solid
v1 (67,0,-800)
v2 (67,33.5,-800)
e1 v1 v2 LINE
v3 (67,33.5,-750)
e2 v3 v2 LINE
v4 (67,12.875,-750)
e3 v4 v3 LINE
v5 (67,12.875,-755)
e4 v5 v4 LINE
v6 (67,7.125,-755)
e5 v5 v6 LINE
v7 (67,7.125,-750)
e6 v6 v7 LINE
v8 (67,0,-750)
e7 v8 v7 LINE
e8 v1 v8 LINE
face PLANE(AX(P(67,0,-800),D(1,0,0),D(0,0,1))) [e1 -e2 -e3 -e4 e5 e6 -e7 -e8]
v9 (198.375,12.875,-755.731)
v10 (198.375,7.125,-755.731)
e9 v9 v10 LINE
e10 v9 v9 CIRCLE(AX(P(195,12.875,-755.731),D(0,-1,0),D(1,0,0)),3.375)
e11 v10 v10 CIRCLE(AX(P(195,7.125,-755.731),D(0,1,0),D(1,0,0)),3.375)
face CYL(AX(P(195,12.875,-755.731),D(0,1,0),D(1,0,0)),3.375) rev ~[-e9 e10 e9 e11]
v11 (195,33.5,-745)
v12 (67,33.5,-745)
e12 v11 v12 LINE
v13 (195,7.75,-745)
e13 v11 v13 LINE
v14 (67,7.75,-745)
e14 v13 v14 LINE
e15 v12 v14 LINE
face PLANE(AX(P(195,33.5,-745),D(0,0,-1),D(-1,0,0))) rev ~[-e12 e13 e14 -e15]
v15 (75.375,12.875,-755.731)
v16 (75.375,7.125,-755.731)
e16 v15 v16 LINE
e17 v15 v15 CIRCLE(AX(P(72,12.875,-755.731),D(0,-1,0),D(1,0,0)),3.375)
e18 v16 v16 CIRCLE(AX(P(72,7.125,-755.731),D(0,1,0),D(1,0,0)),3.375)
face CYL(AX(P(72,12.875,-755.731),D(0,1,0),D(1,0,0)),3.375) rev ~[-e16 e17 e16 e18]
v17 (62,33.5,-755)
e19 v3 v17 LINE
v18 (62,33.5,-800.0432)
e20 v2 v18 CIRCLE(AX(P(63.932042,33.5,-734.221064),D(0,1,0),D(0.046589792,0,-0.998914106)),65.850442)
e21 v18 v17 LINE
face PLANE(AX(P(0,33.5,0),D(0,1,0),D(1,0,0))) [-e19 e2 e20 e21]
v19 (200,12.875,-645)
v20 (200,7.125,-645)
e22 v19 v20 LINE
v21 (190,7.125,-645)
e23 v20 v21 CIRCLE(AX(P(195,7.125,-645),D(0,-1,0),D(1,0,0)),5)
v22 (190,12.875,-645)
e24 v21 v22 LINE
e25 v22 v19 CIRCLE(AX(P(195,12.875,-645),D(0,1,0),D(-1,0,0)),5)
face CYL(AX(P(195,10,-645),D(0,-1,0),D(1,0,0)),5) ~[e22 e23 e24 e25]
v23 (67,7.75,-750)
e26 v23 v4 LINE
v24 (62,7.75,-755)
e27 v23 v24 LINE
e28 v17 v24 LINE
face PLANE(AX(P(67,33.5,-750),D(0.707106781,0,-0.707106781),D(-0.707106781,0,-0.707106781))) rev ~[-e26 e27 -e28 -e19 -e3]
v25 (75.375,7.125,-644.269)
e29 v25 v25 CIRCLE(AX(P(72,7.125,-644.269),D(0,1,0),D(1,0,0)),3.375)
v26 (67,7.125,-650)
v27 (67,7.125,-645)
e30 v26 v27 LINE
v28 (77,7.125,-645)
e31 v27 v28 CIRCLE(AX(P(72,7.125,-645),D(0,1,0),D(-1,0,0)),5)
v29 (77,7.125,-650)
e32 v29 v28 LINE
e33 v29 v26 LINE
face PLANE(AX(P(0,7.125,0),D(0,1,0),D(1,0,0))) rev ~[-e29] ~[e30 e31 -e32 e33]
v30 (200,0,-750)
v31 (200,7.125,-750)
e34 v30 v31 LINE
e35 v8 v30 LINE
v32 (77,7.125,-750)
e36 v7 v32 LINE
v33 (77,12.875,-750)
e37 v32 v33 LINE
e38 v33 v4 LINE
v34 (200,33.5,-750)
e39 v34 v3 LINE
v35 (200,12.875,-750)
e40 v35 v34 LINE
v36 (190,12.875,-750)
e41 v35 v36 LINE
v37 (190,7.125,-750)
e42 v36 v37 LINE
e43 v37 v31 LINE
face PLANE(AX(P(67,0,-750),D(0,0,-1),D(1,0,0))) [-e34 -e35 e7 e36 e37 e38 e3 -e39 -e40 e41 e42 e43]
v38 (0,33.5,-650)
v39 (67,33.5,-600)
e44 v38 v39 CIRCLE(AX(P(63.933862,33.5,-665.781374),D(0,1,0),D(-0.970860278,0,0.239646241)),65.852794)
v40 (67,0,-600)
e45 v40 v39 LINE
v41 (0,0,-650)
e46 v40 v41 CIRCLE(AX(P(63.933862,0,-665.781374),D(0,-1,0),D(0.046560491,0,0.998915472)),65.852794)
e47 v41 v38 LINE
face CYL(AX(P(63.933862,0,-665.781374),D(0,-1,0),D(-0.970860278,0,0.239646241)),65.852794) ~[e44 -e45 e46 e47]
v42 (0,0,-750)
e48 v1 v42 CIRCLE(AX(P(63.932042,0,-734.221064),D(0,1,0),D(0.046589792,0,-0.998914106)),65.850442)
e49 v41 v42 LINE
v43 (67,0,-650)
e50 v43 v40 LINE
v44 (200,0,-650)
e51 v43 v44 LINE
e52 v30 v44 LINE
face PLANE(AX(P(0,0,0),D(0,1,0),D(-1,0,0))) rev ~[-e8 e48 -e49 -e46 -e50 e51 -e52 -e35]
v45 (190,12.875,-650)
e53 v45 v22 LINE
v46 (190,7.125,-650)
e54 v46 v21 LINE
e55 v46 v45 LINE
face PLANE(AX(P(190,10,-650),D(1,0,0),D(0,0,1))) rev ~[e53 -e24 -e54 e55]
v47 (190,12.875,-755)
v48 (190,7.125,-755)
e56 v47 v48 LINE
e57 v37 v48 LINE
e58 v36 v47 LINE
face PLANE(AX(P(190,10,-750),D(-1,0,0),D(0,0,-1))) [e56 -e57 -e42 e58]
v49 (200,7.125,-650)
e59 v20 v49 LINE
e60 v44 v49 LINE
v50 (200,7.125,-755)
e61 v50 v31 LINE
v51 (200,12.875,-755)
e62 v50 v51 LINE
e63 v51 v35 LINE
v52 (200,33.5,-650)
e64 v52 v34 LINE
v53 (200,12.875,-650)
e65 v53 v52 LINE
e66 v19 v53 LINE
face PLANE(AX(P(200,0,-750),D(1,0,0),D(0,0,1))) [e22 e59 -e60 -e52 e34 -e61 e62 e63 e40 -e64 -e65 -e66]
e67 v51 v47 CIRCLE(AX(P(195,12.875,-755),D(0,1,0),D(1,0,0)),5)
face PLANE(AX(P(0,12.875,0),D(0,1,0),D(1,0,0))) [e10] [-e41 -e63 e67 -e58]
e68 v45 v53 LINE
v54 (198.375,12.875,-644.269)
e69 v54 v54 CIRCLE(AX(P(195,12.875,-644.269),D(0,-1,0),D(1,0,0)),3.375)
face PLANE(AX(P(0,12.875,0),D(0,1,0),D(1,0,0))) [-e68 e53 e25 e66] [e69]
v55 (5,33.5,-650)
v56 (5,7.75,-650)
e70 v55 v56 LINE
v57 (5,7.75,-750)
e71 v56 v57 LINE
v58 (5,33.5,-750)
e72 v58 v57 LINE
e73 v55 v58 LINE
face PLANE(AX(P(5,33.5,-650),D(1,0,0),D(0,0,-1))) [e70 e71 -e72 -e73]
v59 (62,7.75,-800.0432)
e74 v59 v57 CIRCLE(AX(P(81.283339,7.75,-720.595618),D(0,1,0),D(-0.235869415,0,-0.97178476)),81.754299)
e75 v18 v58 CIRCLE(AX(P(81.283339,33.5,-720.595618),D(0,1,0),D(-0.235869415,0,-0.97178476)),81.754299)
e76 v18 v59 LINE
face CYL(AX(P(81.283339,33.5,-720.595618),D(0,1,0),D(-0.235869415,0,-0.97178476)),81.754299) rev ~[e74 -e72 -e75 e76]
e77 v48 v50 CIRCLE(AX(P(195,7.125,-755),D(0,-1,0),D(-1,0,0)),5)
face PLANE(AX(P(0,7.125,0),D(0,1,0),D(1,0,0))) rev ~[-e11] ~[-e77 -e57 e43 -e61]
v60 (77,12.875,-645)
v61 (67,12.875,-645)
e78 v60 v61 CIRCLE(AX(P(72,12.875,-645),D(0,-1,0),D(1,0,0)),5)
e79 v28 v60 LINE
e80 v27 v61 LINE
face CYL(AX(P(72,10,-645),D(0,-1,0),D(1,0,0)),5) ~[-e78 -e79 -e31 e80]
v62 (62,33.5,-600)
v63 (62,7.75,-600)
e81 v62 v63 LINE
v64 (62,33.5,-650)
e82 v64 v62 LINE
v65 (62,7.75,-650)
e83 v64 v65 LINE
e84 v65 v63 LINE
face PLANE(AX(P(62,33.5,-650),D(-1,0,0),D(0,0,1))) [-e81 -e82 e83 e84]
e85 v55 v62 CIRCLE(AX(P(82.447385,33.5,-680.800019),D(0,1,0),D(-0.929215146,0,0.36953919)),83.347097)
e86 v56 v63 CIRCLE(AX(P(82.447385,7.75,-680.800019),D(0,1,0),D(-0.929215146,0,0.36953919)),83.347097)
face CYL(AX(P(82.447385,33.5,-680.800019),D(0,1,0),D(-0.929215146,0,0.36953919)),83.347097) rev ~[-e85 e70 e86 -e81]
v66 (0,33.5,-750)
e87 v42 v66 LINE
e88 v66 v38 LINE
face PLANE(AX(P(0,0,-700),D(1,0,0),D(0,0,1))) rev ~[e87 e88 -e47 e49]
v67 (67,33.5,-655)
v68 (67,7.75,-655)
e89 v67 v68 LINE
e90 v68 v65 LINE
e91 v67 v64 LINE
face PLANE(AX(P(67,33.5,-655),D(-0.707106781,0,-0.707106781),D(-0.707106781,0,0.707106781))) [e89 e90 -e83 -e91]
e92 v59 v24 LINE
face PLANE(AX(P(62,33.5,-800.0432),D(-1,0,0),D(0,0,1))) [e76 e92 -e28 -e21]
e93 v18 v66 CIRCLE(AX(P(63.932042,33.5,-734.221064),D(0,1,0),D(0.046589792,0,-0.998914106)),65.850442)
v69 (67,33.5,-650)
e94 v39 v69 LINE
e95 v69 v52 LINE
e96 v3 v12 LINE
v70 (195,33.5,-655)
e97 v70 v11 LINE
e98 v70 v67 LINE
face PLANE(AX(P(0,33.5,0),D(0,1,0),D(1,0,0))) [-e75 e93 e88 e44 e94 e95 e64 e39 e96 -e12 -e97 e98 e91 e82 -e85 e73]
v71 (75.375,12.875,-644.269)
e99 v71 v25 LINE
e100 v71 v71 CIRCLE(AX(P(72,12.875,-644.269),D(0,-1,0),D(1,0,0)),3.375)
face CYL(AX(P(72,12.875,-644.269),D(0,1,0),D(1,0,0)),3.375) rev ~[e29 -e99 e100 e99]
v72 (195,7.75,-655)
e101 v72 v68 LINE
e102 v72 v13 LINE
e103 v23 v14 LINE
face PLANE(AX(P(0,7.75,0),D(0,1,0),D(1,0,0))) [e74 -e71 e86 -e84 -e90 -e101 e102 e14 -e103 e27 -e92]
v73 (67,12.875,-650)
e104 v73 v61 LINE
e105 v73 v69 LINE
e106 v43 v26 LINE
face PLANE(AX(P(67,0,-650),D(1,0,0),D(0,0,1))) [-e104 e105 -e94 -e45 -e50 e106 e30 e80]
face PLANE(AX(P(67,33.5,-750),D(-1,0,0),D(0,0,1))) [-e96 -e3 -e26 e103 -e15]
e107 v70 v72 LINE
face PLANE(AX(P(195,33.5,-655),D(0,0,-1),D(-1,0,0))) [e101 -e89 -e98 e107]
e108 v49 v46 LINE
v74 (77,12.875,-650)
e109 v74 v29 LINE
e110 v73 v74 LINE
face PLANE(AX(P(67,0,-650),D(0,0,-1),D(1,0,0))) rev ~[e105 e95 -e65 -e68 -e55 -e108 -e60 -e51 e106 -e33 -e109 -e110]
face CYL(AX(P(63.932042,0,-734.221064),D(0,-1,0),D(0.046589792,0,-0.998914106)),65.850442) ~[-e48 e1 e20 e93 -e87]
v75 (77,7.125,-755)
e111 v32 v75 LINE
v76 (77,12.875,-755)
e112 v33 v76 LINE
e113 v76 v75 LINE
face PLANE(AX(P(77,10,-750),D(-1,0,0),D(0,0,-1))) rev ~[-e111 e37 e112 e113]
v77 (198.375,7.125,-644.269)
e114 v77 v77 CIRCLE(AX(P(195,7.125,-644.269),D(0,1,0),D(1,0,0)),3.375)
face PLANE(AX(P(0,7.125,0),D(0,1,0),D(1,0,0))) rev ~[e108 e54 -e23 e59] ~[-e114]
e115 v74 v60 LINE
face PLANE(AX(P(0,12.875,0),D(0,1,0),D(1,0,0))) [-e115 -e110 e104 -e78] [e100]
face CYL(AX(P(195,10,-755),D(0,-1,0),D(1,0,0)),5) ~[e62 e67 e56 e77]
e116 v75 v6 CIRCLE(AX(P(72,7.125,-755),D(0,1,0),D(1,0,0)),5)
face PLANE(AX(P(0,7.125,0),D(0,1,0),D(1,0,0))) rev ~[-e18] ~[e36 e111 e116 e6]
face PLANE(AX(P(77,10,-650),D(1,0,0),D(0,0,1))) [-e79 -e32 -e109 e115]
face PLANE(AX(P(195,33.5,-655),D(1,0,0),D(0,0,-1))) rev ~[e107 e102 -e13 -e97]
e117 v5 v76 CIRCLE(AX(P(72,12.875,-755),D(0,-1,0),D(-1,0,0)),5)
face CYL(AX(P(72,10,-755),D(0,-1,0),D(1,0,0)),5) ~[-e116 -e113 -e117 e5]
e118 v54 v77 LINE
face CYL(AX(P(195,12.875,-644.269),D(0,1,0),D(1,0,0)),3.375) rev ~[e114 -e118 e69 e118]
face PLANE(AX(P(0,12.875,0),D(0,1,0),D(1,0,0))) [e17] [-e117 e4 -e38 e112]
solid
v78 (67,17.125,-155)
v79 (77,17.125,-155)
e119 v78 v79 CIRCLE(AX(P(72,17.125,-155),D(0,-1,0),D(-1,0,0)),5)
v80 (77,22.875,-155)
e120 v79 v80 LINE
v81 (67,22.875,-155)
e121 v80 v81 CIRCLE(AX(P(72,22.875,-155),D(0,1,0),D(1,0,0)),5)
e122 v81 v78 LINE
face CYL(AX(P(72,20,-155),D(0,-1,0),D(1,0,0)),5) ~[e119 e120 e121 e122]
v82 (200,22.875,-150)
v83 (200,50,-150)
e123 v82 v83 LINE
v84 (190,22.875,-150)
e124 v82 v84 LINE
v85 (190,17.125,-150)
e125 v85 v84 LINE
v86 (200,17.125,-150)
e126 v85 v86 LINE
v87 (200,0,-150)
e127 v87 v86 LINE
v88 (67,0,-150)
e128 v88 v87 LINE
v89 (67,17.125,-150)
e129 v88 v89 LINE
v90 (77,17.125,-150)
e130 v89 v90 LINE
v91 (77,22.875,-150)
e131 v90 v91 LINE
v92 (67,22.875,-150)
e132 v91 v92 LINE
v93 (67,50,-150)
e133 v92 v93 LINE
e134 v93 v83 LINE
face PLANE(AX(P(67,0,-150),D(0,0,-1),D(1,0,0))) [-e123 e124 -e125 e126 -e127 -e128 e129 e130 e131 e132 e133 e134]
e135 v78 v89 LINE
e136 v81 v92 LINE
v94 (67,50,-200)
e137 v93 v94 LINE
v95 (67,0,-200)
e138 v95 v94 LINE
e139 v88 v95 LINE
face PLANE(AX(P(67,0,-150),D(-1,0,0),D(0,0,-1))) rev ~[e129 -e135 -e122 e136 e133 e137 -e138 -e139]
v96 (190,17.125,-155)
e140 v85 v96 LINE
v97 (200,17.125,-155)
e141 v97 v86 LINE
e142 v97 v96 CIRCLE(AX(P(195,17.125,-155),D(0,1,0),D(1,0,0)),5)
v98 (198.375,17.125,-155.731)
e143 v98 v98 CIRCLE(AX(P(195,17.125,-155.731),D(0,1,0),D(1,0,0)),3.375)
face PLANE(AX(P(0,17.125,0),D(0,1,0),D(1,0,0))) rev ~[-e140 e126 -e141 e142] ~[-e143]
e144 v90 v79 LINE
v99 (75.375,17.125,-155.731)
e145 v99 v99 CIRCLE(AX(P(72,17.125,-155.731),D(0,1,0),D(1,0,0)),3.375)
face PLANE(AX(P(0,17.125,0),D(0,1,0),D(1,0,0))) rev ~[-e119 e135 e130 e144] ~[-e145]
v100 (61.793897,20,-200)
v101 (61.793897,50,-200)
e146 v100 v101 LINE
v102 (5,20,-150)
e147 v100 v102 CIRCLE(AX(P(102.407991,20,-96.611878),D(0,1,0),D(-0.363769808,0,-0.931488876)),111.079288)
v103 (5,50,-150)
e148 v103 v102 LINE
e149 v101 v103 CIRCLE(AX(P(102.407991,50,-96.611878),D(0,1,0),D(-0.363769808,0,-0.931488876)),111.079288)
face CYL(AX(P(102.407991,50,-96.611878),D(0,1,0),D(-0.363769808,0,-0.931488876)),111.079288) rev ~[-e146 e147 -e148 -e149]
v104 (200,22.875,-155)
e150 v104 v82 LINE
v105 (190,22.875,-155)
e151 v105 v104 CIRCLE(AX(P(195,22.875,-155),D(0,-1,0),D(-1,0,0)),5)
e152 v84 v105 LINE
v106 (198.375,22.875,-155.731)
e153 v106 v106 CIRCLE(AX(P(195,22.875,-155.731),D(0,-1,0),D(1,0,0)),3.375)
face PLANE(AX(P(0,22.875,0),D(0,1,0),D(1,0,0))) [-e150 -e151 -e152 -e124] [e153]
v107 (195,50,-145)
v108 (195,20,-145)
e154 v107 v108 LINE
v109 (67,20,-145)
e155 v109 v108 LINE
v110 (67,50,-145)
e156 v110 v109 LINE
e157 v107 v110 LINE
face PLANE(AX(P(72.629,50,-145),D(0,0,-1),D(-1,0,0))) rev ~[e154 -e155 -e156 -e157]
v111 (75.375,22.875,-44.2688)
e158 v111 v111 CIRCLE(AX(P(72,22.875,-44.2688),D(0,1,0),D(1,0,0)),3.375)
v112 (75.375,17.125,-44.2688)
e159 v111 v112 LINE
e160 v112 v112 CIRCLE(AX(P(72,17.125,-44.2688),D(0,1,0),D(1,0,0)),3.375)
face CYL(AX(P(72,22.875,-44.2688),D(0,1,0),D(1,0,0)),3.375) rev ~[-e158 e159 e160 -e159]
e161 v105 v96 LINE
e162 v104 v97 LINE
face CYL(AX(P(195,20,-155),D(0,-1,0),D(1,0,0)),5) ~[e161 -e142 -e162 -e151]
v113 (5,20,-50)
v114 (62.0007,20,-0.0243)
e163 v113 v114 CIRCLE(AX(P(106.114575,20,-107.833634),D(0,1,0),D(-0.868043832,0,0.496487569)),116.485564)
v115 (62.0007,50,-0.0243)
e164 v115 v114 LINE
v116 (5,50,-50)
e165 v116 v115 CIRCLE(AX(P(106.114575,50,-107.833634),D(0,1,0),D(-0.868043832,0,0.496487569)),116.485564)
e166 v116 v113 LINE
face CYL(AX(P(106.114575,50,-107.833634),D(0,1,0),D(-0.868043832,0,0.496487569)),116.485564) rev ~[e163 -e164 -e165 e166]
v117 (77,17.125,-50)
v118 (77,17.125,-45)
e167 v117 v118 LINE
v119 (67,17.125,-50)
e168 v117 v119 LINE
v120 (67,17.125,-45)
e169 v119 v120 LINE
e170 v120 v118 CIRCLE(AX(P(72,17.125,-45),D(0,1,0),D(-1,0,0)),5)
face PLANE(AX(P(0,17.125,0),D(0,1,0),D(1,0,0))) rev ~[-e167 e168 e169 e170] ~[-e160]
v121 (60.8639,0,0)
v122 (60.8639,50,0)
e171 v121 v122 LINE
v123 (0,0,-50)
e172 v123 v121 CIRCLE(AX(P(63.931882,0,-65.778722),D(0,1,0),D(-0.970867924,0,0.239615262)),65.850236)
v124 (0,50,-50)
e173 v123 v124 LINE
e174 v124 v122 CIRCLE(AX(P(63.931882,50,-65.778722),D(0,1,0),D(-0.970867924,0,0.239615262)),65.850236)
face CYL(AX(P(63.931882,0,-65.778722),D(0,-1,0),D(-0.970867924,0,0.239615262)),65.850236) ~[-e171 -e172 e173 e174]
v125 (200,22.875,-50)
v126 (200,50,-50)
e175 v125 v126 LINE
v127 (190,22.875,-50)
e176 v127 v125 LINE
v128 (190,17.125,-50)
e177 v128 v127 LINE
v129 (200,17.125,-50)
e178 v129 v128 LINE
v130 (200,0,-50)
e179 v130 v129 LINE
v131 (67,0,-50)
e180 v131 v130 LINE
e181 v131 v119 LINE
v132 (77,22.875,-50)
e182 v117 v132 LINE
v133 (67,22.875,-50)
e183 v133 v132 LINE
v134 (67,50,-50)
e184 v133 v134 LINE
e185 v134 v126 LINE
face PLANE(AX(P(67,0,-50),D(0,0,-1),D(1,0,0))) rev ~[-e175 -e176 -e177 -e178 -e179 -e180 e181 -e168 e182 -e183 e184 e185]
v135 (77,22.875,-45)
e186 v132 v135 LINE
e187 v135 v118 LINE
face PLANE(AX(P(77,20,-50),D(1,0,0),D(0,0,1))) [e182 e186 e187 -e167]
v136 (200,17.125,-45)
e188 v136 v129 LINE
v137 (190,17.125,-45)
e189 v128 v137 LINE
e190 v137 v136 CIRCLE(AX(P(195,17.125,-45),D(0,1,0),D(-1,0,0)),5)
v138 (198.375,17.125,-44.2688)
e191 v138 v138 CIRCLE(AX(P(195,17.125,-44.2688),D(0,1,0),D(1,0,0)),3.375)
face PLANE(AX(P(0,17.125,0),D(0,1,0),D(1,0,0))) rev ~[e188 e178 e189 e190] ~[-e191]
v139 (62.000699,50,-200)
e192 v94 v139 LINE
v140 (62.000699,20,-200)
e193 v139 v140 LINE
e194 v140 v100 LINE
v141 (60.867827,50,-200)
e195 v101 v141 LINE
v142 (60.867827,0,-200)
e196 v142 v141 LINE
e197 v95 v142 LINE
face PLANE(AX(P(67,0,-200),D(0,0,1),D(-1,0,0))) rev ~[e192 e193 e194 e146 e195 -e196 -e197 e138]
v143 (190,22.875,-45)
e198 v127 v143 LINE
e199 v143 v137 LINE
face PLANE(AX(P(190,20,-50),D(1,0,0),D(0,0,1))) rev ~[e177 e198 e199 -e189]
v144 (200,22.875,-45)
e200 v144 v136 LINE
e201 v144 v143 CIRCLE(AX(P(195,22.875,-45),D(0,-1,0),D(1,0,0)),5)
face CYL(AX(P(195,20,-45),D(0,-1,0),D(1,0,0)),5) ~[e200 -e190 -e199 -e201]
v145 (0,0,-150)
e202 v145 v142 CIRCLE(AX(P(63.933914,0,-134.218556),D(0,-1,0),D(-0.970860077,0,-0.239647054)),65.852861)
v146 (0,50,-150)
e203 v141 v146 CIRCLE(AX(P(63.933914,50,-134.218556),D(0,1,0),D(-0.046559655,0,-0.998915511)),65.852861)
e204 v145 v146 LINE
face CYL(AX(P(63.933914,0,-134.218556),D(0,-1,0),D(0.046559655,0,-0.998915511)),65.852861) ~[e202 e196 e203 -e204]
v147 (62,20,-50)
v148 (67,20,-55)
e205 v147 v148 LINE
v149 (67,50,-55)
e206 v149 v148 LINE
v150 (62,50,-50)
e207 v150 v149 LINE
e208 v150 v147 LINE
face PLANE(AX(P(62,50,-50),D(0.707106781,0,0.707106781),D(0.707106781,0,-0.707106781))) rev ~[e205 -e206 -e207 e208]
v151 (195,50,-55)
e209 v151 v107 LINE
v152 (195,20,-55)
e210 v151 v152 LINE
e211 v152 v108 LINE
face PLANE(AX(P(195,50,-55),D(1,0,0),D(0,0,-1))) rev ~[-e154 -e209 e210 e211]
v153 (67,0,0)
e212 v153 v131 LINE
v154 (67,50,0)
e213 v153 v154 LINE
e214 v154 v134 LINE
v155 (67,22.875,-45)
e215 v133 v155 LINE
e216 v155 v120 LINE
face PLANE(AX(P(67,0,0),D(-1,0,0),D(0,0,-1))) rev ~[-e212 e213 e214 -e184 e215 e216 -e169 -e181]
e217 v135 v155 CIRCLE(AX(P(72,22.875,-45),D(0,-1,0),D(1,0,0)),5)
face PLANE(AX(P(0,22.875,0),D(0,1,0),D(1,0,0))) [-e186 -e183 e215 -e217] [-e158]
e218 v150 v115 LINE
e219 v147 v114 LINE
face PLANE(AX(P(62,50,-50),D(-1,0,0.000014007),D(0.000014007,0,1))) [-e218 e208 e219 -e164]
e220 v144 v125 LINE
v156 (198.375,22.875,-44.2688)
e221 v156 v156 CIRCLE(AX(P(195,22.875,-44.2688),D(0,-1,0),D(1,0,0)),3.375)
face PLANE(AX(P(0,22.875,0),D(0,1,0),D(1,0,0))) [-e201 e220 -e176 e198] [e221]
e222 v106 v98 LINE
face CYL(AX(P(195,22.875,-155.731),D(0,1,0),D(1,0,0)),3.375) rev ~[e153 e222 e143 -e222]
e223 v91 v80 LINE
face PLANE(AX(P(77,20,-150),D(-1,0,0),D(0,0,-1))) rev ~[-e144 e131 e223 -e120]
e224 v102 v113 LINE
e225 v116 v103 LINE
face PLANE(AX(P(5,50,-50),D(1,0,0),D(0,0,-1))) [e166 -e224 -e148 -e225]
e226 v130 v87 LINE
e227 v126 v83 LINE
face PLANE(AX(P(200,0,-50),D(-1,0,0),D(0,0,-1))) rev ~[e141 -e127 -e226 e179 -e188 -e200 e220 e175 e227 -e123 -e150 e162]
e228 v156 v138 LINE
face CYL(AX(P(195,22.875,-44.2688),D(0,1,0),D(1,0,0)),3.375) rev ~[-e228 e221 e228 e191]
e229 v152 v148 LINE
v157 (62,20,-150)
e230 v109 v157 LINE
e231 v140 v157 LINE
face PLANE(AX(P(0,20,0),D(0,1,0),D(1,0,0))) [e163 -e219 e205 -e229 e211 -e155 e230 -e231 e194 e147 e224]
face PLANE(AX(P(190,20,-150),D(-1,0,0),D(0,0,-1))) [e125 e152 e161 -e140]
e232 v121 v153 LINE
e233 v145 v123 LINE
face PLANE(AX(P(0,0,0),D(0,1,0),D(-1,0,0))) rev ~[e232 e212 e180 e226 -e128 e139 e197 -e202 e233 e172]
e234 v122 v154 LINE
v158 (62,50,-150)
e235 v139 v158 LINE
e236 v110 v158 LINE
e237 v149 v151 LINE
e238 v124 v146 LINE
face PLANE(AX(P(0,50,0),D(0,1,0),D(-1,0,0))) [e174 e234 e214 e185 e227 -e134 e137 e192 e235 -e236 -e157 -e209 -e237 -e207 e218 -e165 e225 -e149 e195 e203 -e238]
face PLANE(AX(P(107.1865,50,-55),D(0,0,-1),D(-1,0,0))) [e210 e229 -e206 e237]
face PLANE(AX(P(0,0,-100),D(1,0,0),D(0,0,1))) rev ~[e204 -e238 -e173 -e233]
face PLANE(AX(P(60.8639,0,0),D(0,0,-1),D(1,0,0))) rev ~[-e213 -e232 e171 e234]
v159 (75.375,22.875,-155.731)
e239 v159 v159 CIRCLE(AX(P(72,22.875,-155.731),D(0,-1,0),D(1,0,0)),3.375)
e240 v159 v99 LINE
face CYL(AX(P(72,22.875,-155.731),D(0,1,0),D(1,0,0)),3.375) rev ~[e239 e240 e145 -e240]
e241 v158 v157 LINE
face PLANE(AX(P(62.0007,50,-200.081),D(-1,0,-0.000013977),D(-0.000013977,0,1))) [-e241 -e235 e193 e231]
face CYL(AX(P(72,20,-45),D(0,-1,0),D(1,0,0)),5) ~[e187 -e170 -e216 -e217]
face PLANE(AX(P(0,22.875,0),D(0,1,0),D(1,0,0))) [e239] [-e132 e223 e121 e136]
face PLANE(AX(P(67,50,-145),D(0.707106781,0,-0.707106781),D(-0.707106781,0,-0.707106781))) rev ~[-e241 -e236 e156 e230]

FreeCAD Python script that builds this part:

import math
import FreeCAD as App
import Part
import Sketcher
Q = App.Units.Quantity

doc = App.newDocument("Part")
body = doc.addObject("PartDesign::Body", "Body")
body.AllowCompound = True

sketch1 = body.newObject("Sketcher::SketchObject", "Sketch")
sketch1.AttachmentSupport = (doc.getObject("XZ_Plane"), [""])
sketch1.MapMode = "FlatFace"
sketch1.addGeometry([
    Part.ArcOfCircle(Part.Circle(App.Vector(64, -66, 0), App.Vector(0, 0, 1), 66), math.radians(93), math.radians(166)),
    Part.LineSegment(App.Vector(61, 0, 0), App.Vector(67, 0, 0)),
    Part.LineSegment(App.Vector(67, 0, 0), App.Vector(67, -50, 0)),
    Part.LineSegment(App.Vector(67, -50, 0), App.Vector(200, -50, 0)),
    Part.LineSegment(App.Vector(200, -50, 0), App.Vector(200, -150, 0)),
    Part.LineSegment(App.Vector(200, -150, 0), App.Vector(67, -150, 0)),
    Part.LineSegment(App.Vector(67, -150, 0), App.Vector(67, -200, 0)),
    Part.LineSegment(App.Vector(67, -200, 0), App.Vector(61, -200, 0)),
    Part.ArcOfCircle(Part.Circle(App.Vector(64, -134, 0), App.Vector(0, 0, 1), 66), math.radians(-166), math.radians(-93)),
    Part.LineSegment(App.Vector(0, -150, 0), App.Vector(0, -50, 0)),
    Part.LineSegment(App.Vector(200, -650, 0), App.Vector(200, -750, 0)),
    Part.LineSegment(App.Vector(200, -750, 0), App.Vector(67, -750, 0)),
    Part.LineSegment(App.Vector(67, -750, 0), App.Vector(67, -800, 0)),
    Part.ArcOfCircle(Part.Circle(App.Vector(64, -734, 0), App.Vector(0, 0, 1), 66), math.radians(-166), math.radians(-87)),
    Part.LineSegment(App.Vector(0, -750, 0), App.Vector(0, -650, 0)),
    Part.ArcOfCircle(Part.Circle(App.Vector(64, -666, 0), App.Vector(0, 0, 1), 66), math.radians(87), math.radians(166)),
    Part.LineSegment(App.Vector(67, -600, 0), App.Vector(67, -650, 0)),
    Part.LineSegment(App.Vector(67, -650, 0), App.Vector(200, -650, 0)),
], False)
sketch1.addConstraint([
    Sketcher.Constraint("Coincident", 0, 1, 1, 1),
    Sketcher.Constraint("Coincident", 1, 2, 2, 1),
    Sketcher.Constraint("Coincident", 2, 2, 3, 1),
    Sketcher.Constraint("Coincident", 3, 2, 4, 1),
    Sketcher.Constraint("Coincident", 4, 2, 5, 1),
    Sketcher.Constraint("Coincident", 5, 2, 6, 1),
    Sketcher.Constraint("Coincident", 6, 2, 7, 1),
    Sketcher.Constraint("Coincident", 7, 2, 8, 2),
    Sketcher.Constraint("Coincident", 8, 1, 9, 1),
    Sketcher.Constraint("Coincident", 9, 2, 0, 2),
    Sketcher.Constraint("Coincident", 10, 2, 11, 1),
    Sketcher.Constraint("Coincident", 11, 2, 12, 1),
    Sketcher.Constraint("Coincident", 12, 2, 13, 2),
    Sketcher.Constraint("Coincident", 13, 1, 14, 1),
    Sketcher.Constraint("Coincident", 14, 2, 15, 2),
    Sketcher.Constraint("Coincident", 15, 1, 16, 1),
    Sketcher.Constraint("Coincident", 16, 2, 17, 1),
    Sketcher.Constraint("Coincident", 17, 2, 10, 1),
    Sketcher.Constraint("Horizontal", 1),
    Sketcher.Constraint("Vertical", 2),
    Sketcher.Constraint("Horizontal", 3),
    Sketcher.Constraint("Vertical", 4),
    Sketcher.Constraint("Horizontal", 5),
    Sketcher.Constraint("Vertical", 6),
    Sketcher.Constraint("Horizontal", 7),
    Sketcher.Constraint("Vertical", 9),
    Sketcher.Constraint("Vertical", 10),
    Sketcher.Constraint("Horizontal", 11),
    Sketcher.Constraint("Vertical", 12),
    Sketcher.Constraint("Vertical", 14),
    Sketcher.Constraint("Vertical", 16),
    Sketcher.Constraint("Horizontal", 17),
    Sketcher.Constraint("Equal", 0, 13),
    Sketcher.Constraint("Equal", 8, 15),
    Sketcher.Constraint("PointOnObject", 0, 1, -1),
    Sketcher.Constraint("PointOnObject", 8, 1, -2),
    Sketcher.Constraint("PointOnObject", 13, 1, -2),
    Sketcher.Constraint("Horizontal", 5, 2, 8, 1),
    Sketcher.Constraint("Horizontal", 3, 2, 9, 2),
    Sketcher.Constraint("Horizontal", 11, 2, 13, 1),
    Sketcher.Constraint("Horizontal", 14, 2, 16, 2),
    Sketcher.Constraint("Vertical", 0, 3, 13, 3),
    Sketcher.Constraint("Vertical", 8, 3, 15, 3),
    Sketcher.Constraint("Vertical", 2, 2, 5, 2),
    Sketcher.Constraint("Vertical", 4, 2, 10, 2),
    Sketcher.Constraint("Vertical", 6, 2, 11, 2),
    Sketcher.Constraint("Vertical", 12, 2, 15, 1),
    Sketcher.Constraint("Equal", 2, 6),
    Sketcher.Constraint("Equal", 9, 10),
    Sketcher.Constraint("Equal", 6, 12),
    Sketcher.Constraint("Equal", 12, 16),
    Sketcher.Constraint("DistanceY", 2, 2, 2, 1, Q("50 mm")),
    Sketcher.Constraint("DistanceY", 4, 2, 4, 1, Q("100 mm")),
    Sketcher.Constraint("DistanceX", -1, 1, 1, 2, Q("67 mm")),
    Sketcher.Constraint("DistanceX", -1, 1, 3, 2, Q("200 mm")),
    Sketcher.Constraint("DistanceY", 10, 2, -1, 1, Q("750 mm")),
    Sketcher.Constraint("Radius", 0, Q("65.8504 mm")),
    Sketcher.Constraint("Radius", 8, Q("65.8528 mm")),
])
pad1 = body.newObject("PartDesign::Pad", "Pad")
pad1.Profile = sketch1
pad1.Length = 50
pad1.Reversed = True

sketch2 = body.newObject("Sketcher::SketchObject", "Sketch001")
sketch2.AttachmentSupport = (doc.getObject("XZ_Plane"), [""])
sketch2.MapMode = "FlatFace"
sketch2.AttachmentOffset = App.Placement(App.Vector(0, 0, -50), App.Rotation())
sketch2.addGeometry([
    Part.ArcOfCircle(Part.Circle(App.Vector(106, -108, 0), App.Vector(0, 0, 1), 116), math.radians(112), math.radians(150)),
    Part.LineSegment(App.Vector(62, 0, 0), App.Vector(62, -50, 0)),
    Part.LineSegment(App.Vector(62, -50, 0), App.Vector(67, -55, 0)),
    Part.LineSegment(App.Vector(67, -55, 0), App.Vector(195, -55, 0)),
    Part.LineSegment(App.Vector(195, -55, 0), App.Vector(195, -145, 0)),
    Part.LineSegment(App.Vector(195, -145, 0), App.Vector(67, -145, 0)),
    Part.LineSegment(App.Vector(67, -145, 0), App.Vector(62, -150, 0)),
    Part.LineSegment(App.Vector(62, -150, 0), App.Vector(62, -200, 0)),
    Part.ArcOfCircle(Part.Circle(App.Vector(102, -97, 0), App.Vector(0, 0, 1), 111), math.radians(-151), math.radians(-111)),
    Part.LineSegment(App.Vector(5, -150, 0), App.Vector(5, -50, 0)),
], False)
sketch2.addConstraint([
    Sketcher.Constraint("Coincident", 0, 1, 1, 1),
    Sketcher.Constraint("Coincident", 1, 2, 2, 1),
    Sketcher.Constraint("Coincident", 2, 2, 3, 1),
    Sketcher.Constraint("Coincident", 3, 2, 4, 1),
    Sketcher.Constraint("Coincident", 4, 2, 5, 1),
    Sketcher.Constraint("Coincident", 5, 2, 6, 1),
    Sketcher.Constraint("Coincident", 6, 2, 7, 1),
    Sketcher.Constraint("Coincident", 7, 2, 8, 2),
    Sketcher.Constraint("Coincident", 8, 1, 9, 1),
    Sketcher.Constraint("Coincident", 9, 2, 0, 2),
    Sketcher.Constraint("Horizontal", 3),
    Sketcher.Constraint("Vertical", 4),
    Sketcher.Constraint("Horizontal", 5),
    Sketcher.Constraint("Vertical", 9),
    Sketcher.Constraint("Perpendicular", 2, 6),
    Sketcher.Constraint("Parallel", 1, 7),
    Sketcher.Constraint("Horizontal", 6, 2, 8, 1),
    Sketcher.Constraint("Horizontal", 1, 2, 9, 2),
    Sketcher.Constraint("Vertical", 2, 2, 5, 2),
    Sketcher.Constraint("Vertical", 1, 2, 6, 2),
    Sketcher.Constraint("Vertical", 0, 1, 7, 2),
    Sketcher.Constraint("Equal", 2, 6),
    Sketcher.Constraint("DistanceX", -1, 1, 8, 1, Q("5 mm")),
    Sketcher.Constraint("DistanceX", 1, 2, 2, 2, Q("5 mm")),
    Sketcher.Constraint("DistanceX", 3, 1, 3, 2, Q("128 mm")),
    Sketcher.Constraint("DistanceY", 4, 2, 4, 1, Q("90 mm")),
    Sketcher.Constraint("DistanceX", -1, 1, 1, 2, Q("62 mm")),
    Sketcher.Constraint("DistanceY", 1, 2, -1, 1, Q("50 mm")),
    Sketcher.Constraint("Radius", 0, Q("116.486 mm")),
    Sketcher.Constraint("Radius", 8, Q("111.0795 mm")),
    Sketcher.Constraint("Distance", 7, Q("50.081 mm")),
    Sketcher.Constraint("DistanceX", -1, 1, 0, 3, Q("106.115 mm")),
])
pocket1 = body.newObject("PartDesign::Pocket", "Pocket")
pocket1.Profile = sketch2
pocket1.Length = 30
pocket1.Reversed = True

sketch3 = body.newObject("Sketcher::SketchObject", "Sketch002")
sketch3.AttachmentSupport = (doc.getObject("XZ_Plane"), [""])
sketch3.MapMode = "FlatFace"
sketch3.AttachmentOffset = App.Placement(App.Vector(0, 0, -20), App.Rotation())
sketch3.addGeometry([
    Part.LineSegment(App.Vector(77, -150, 0), App.Vector(77, -155, 0)),
    Part.ArcOfCircle(Part.Circle(App.Vector(72, -155, 0), App.Vector(0, 0, 1), 5), math.radians(180), math.radians(360)),
    Part.LineSegment(App.Vector(67, -155, 0), App.Vector(67, -150, 0)),
    Part.LineSegment(App.Vector(67, -150, 0), App.Vector(77, -150, 0)),
    Part.LineSegment(App.Vector(190, -155, 0), App.Vector(190, -150, 0)),
    Part.LineSegment(App.Vector(190, -150, 0), App.Vector(200, -150, 0)),
    Part.LineSegment(App.Vector(200, -150, 0), App.Vector(200, -155, 0)),
    Part.ArcOfCircle(Part.Circle(App.Vector(195, -155, 0), App.Vector(0, 0, 1), 5), math.radians(180), math.radians(360)),
    Part.LineSegment(App.Vector(200, -45, 0), App.Vector(200, -50, 0)),
    Part.LineSegment(App.Vector(200, -50, 0), App.Vector(190, -50, 0)),
    Part.LineSegment(App.Vector(190, -50, 0), App.Vector(190, -45, 0)),
    Part.ArcOfCircle(Part.Circle(App.Vector(195, -45, 0), App.Vector(0, 0, 1), 5), math.radians(0), math.radians(180)),
    Part.LineSegment(App.Vector(77, -45, 0), App.Vector(77, -50, 0)),
    Part.LineSegment(App.Vector(77, -50, 0), App.Vector(67, -50, 0)),
    Part.LineSegment(App.Vector(67, -50, 0), App.Vector(67, -45, 0)),
    Part.ArcOfCircle(Part.Circle(App.Vector(72, -45, 0), App.Vector(0, 0, 1), 5), math.radians(0), math.radians(180)),
], False)
sketch3.addConstraint([
    Sketcher.Constraint("Tangent", 0, 2, 1, 2),
    Sketcher.Constraint("Tangent", 1, 1, 2, 1),
    Sketcher.Constraint("Coincident", 2, 2, 3, 1),
    Sketcher.Constraint("Coincident", 3, 2, 0, 1),
    Sketcher.Constraint("Coincident", 4, 2, 5, 1),
    Sketcher.Constraint("Coincident", 5, 2, 6, 1),
    Sketcher.Constraint("Tangent", 6, 2, 7, 2),
    Sketcher.Constraint("Tangent", 7, 1, 4, 1),
    Sketcher.Constraint("Coincident", 8, 2, 9, 1),
    Sketcher.Constraint("Coincident", 9, 2, 10, 1),
    Sketcher.Constraint("Tangent", 10, 2, 11, 2),
    Sketcher.Constraint("Tangent", 11, 1, 8, 1),
    Sketcher.Constraint("Coincident", 12, 2, 13, 1),
    Sketcher.Constraint("Coincident", 13, 2, 14, 1),
    Sketcher.Constraint("Tangent", 14, 2, 15, 2),
    Sketcher.Constraint("Tangent", 15, 1, 12, 1),
    Sketcher.Constraint("Vertical", 0),
    Sketcher.Constraint("Vertical", 2),
    Sketcher.Constraint("Horizontal", 3),
    Sketcher.Constraint("Vertical", 4),
    Sketcher.Constraint("Horizontal", 5),
    Sketcher.Constraint("Vertical", 6),
    Sketcher.Constraint("Vertical", 8),
    Sketcher.Constraint("Horizontal", 9),
    Sketcher.Constraint("Vertical", 10),
    Sketcher.Constraint("Vertical", 12),
    Sketcher.Constraint("Horizontal", 13),
    Sketcher.Constraint("Vertical", 14),
    Sketcher.Constraint("Equal", 1, 7),
    Sketcher.Constraint("Equal", 7, 11),
    Sketcher.Constraint("Equal", 11, 15),
    Sketcher.Constraint("Horizontal", 1, 3, 7, 3),
    Sketcher.Constraint("Horizontal", 11, 3, 15, 3),
    Sketcher.Constraint("Horizontal", 3, 2, 4, 2),
    Sketcher.Constraint("Horizontal", 9, 2, 12, 2),
    Sketcher.Constraint("Vertical", 7, 3, 11, 3),
    Sketcher.Constraint("Vertical", 1, 3, 15, 3),
    Sketcher.Constraint("Equal", 6, 8),
    Sketcher.Constraint("Radius", 1, Q("5 mm")),
    Sketcher.Constraint("DistanceY", 0, 2, 0, 1, Q("5 mm")),
    Sketcher.Constraint("DistanceX", -1, 1, 1, 3, Q("72 mm")),
    Sketcher.Constraint("DistanceY", 1, 3, -1, 1, Q("155 mm")),
    Sketcher.Constraint("DistanceX", -1, 1, 7, 3, Q("195 mm")),
    Sketcher.Constraint("DistanceY", 11, 3, -1, 1, Q("45 mm")),
])
pad2 = body.newObject("PartDesign::Pad", "Pad001")
pad2.Profile = sketch3
pad2.Length = 5.75
pad2.Midplane = True

sketch4 = body.newObject("Sketcher::SketchObject", "Sketch003")
sketch4.AttachmentSupport = (doc.getObject("XZ_Plane"), [""])
sketch4.MapMode = "FlatFace"
sketch4.AttachmentOffset = App.Placement(App.Vector(0, 0, -22.875), App.Rotation())
sketch4.addGeometry([
    Part.Circle(App.Vector(72, -44.3, 0), App.Vector(0, 0, 1), 3.4),
    Part.Circle(App.Vector(195, -44.3, 0), App.Vector(0, 0, 1), 3.4),
    Part.Circle(App.Vector(195, -155.7, 0), App.Vector(0, 0, 1), 3.4),
    Part.Circle(App.Vector(72, -155.7, 0), App.Vector(0, 0, 1), 3.4),
], False)
sketch4.addConstraint([
    Sketcher.Constraint("Equal", 0, 1),
    Sketcher.Constraint("Equal", 1, 2),
    Sketcher.Constraint("Equal", 2, 3),
    Sketcher.Constraint("Horizontal", 0, 3, 1, 3),
    Sketcher.Constraint("Horizontal", 2, 3, 3, 3),
    Sketcher.Constraint("Vertical", 1, 3, 2, 3),
    Sketcher.Constraint("Vertical", 0, 3, 3, 3),
    Sketcher.Constraint("Diameter", 0, Q("6.75 mm")),
    Sketcher.Constraint("DistanceX", -1, 1, 0, 3, Q("72 mm")),
    Sketcher.Constraint("DistanceX", -1, 1, 1, 3, Q("195 mm")),
    Sketcher.Constraint("DistanceY", 2, 3, -1, 1, Q("155.731 mm")),
    Sketcher.Constraint("DistanceY", 0, 3, -1, 1, Q("44.2688 mm")),
])
pocket2 = body.newObject("PartDesign::Pocket", "Pocket001")
pocket2.Profile = sketch4
pocket2.Length = 5.75
pocket2.Reversed = True

sketch5 = body.newObject("Sketcher::SketchObject", "Sketch004")
sketch5.AttachmentSupport = (doc.getObject("XZ_Plane"), [""])
sketch5.MapMode = "FlatFace"
sketch5.AttachmentOffset = App.Placement(App.Vector(0, 0, -50), App.Rotation())
sketch5.addGeometry([
    Part.LineSegment(App.Vector(0, -750, 0), App.Vector(0, -650, 0)),
    Part.ArcOfCircle(Part.Circle(App.Vector(64, -666, 0), App.Vector(0, 0, 1), 66), math.radians(87), math.radians(166)),
    Part.LineSegment(App.Vector(67, -600, 0), App.Vector(67, -650, 0)),
    Part.LineSegment(App.Vector(67, -650, 0), App.Vector(200, -650, 0)),
    Part.LineSegment(App.Vector(200, -650, 0), App.Vector(200, -750, 0)),
    Part.LineSegment(App.Vector(200, -750, 0), App.Vector(67, -750, 0)),
    Part.LineSegment(App.Vector(67, -750, 0), App.Vector(67, -800, 0)),
    Part.ArcOfCircle(Part.Circle(App.Vector(64, -734, 0), App.Vector(0, 0, 1), 66), math.radians(-166), math.radians(-87)),
], False)
sketch5.addConstraint([
    Sketcher.Constraint("Coincident", 0, 2, 1, 2),
    Sketcher.Constraint("Coincident", 1, 1, 2, 1),
    Sketcher.Constraint("Coincident", 2, 2, 3, 1),
    Sketcher.Constraint("Coincident", 3, 2, 4, 1),
    Sketcher.Constraint("Coincident", 4, 2, 5, 1),
    Sketcher.Constraint("Coincident", 5, 2, 6, 1),
    Sketcher.Constraint("Coincident", 6, 2, 7, 2),
    Sketcher.Constraint("Coincident", 7, 1, 0, 1),
    Sketcher.Constraint("Vertical", 0),
    Sketcher.Constraint("Vertical", 2),
    Sketcher.Constraint("Horizontal", 3),
    Sketcher.Constraint("Vertical", 4),
    Sketcher.Constraint("Horizontal", 5),
    Sketcher.Constraint("Vertical", 6),
    Sketcher.Constraint("PointOnObject", 0, 2, -2),
    Sketcher.Constraint("Horizontal", 0, 2, 2, 2),
    Sketcher.Constraint("Horizontal", 5, 2, 7, 1),
    Sketcher.Constraint("Vertical", 2, 2, 5, 2),
    Sketcher.Constraint("Equal", 2, 6),
    Sketcher.Constraint("DistanceY", 2, 2, 2, 1, Q("50 mm")),
    Sketcher.Constraint("DistanceX", 3, 1, 3, 2, Q("133 mm")),
    Sketcher.Constraint("DistanceY", 0, 1, 0, 2, Q("100 mm")),
    Sketcher.Constraint("DistanceY", 0, 2, -1, 1, Q("650 mm")),
    Sketcher.Constraint("DistanceX", -1, 1, 1, 1, Q("67 mm")),
    Sketcher.Constraint("Radius", 1, Q("65.8528 mm")),
    Sketcher.Constraint("Radius", 7, Q("65.8503 mm")),
])
pocket3 = body.newObject("PartDesign::Pocket", "Pocket002")
pocket3.Profile = sketch5
pocket3.Length = 16.5
pocket3.Reversed = True

sketch6 = body.newObject("Sketcher::SketchObject", "Sketch005")
sketch6.AttachmentSupport = (doc.getObject("XZ_Plane"), [""])
sketch6.MapMode = "FlatFace"
sketch6.AttachmentOffset = App.Placement(App.Vector(0, 0, -33.5), App.Rotation())
sketch6.addGeometry([
    Part.LineSegment(App.Vector(67, -745, 0), App.Vector(67, -750, 0)),
    Part.LineSegment(App.Vector(67, -750, 0), App.Vector(62, -755, 0)),
    Part.LineSegment(App.Vector(62, -755, 0), App.Vector(62, -800, 0)),
    Part.ArcOfCircle(Part.Circle(App.Vector(81, -721, 0), App.Vector(0, 0, 1), 82), math.radians(-159), math.radians(-104)),
    Part.LineSegment(App.Vector(5, -750, 0), App.Vector(5, -650, 0)),
    Part.ArcOfCircle(Part.Circle(App.Vector(82, -681, 0), App.Vector(0, 0, 1), 83), math.radians(104), math.radians(158)),
    Part.LineSegment(App.Vector(62, -600, 0), App.Vector(62, -650, 0)),
    Part.LineSegment(App.Vector(62, -650, 0), App.Vector(67, -655, 0)),
    Part.LineSegment(App.Vector(67, -655, 0), App.Vector(195, -655, 0)),
    Part.LineSegment(App.Vector(195, -655, 0), App.Vector(195, -745, 0)),
    Part.LineSegment(App.Vector(195, -745, 0), App.Vector(67, -745, 0)),
], False)
sketch6.addConstraint([
    Sketcher.Constraint("Coincident", 0, 2, 1, 1),
    Sketcher.Constraint("Coincident", 1, 2, 2, 1),
    Sketcher.Constraint("Coincident", 2, 2, 3, 2),
    Sketcher.Constraint("Coincident", 3, 1, 4, 1),
    Sketcher.Constraint("Coincident", 4, 2, 5, 2),
    Sketcher.Constraint("Coincident", 5, 1, 6, 1),
    Sketcher.Constraint("Coincident", 6, 2, 7, 1),
    Sketcher.Constraint("Coincident", 7, 2, 8, 1),
    Sketcher.Constraint("Coincident", 8, 2, 9, 1),
    Sketcher.Constraint("Coincident", 9, 2, 10, 1),
    Sketcher.Constraint("Coincident", 10, 2, 0, 1),
    Sketcher.Constraint("Vertical", 0),
    Sketcher.Constraint("Vertical", 2),
    Sketcher.Constraint("Vertical", 4),
    Sketcher.Constraint("Vertical", 6),
    Sketcher.Constraint("Horizontal", 8),
    Sketcher.Constraint("Vertical", 9),
    Sketcher.Constraint("Horizontal", 10),
    Sketcher.Constraint("Perpendicular", 1, 7),
    Sketcher.Constraint("Horizontal", 0, 2, 3, 1),
    Sketcher.Constraint("Horizontal", 4, 2, 6, 2),
    Sketcher.Constraint("Vertical", 2, 2, 5, 1),
    Sketcher.Constraint("Vertical", 0, 2, 7, 2),
    Sketcher.Constraint("Equal", 1, 7),
    Sketcher.Constraint("DistanceY", 0, 2, 0, 1, Q("5 mm")),
    Sketcher.Constraint("DistanceX", -1, 1, 3, 1, Q("5 mm")),
    Sketcher.Constraint("DistanceX", 1, 2, 0, 2, Q("5 mm")),
    Sketcher.Constraint("DistanceX", 8, 1, 8, 2, Q("128 mm")),
    Sketcher.Constraint("DistanceY", 4, 1, 4, 2, Q("100 mm")),
    Sketcher.Constraint("DistanceY", 6, 2, 6, 1, Q("50 mm")),
    Sketcher.Constraint("DistanceX", -1, 1, 0, 2, Q("67 mm")),
    Sketcher.Constraint("DistanceY", 0, 2, -1, 1, Q("750 mm")),
    Sketcher.Constraint("DistanceY", 5, 3, -1, 1, Q("680.8 mm")),
    Sketcher.Constraint("Radius", 3, Q("81.7544 mm")),
    Sketcher.Constraint("DistanceY", 2, 2, 2, 1, Q("45.0432 mm")),
])
pocket4 = body.newObject("PartDesign::Pocket", "Pocket003")
pocket4.Profile = sketch6
pocket4.Length = 25.75
pocket4.Reversed = True

sketch7 = body.newObject("Sketcher::SketchObject", "Sketch006")
sketch7.AttachmentSupport = (doc.getObject("XZ_Plane"), [""])
sketch7.MapMode = "FlatFace"
sketch7.AttachmentOffset = App.Placement(App.Vector(0, 0, -10), App.Rotation())
sketch7.addGeometry([
    Part.LineSegment(App.Vector(67, -650, 0), App.Vector(67, -645, 0)),
    Part.ArcOfCircle(Part.Circle(App.Vector(72, -645, 0), App.Vector(0, 0, 1), 5), math.radians(0), math.radians(180)),
    Part.LineSegment(App.Vector(77, -645, 0), App.Vector(77, -650, 0)),
    Part.LineSegment(App.Vector(77, -650, 0), App.Vector(67, -650, 0)),
    Part.LineSegment(App.Vector(190, -650, 0), App.Vector(190, -645, 0)),
    Part.ArcOfCircle(Part.Circle(App.Vector(195, -645, 0), App.Vector(0, 0, 1), 5), math.radians(0), math.radians(180)),
    Part.LineSegment(App.Vector(200, -645, 0), App.Vector(200, -650, 0)),
    Part.LineSegment(App.Vector(200, -650, 0), App.Vector(190, -650, 0)),
    Part.LineSegment(App.Vector(67, -755, 0), App.Vector(67, -750, 0)),
    Part.LineSegment(App.Vector(67, -750, 0), App.Vector(77, -750, 0)),
    Part.LineSegment(App.Vector(77, -750, 0), App.Vector(77, -755, 0)),
    Part.ArcOfCircle(Part.Circle(App.Vector(72, -755, 0), App.Vector(0, 0, 1), 5), math.radians(180), math.radians(360)),
    Part.LineSegment(App.Vector(200, -750, 0), App.Vector(200, -755, 0)),
    Part.ArcOfCircle(Part.Circle(App.Vector(195, -755, 0), App.Vector(0, 0, 1), 5), math.radians(180), math.radians(360)),
    Part.LineSegment(App.Vector(190, -755, 0), App.Vector(190, -750, 0)),
    Part.LineSegment(App.Vector(190, -750, 0), App.Vector(200, -750, 0)),
], False)
sketch7.addConstraint([
    Sketcher.Constraint("Tangent", 0, 2, 1, 2),
    Sketcher.Constraint("Tangent", 1, 1, 2, 1),
    Sketcher.Constraint("Coincident", 2, 2, 3, 1),
    Sketcher.Constraint("Coincident", 3, 2, 0, 1),
    Sketcher.Constraint("Tangent", 4, 2, 5, 2),
    Sketcher.Constraint("Tangent", 5, 1, 6, 1),
    Sketcher.Constraint("Coincident", 6, 2, 7, 1),
    Sketcher.Constraint("Coincident", 7, 2, 4, 1),
    Sketcher.Constraint("Coincident", 8, 2, 9, 1),
    Sketcher.Constraint("Coincident", 9, 2, 10, 1),
    Sketcher.Constraint("Tangent", 10, 2, 11, 2),
    Sketcher.Constraint("Tangent", 11, 1, 8, 1),
    Sketcher.Constraint("Tangent", 12, 2, 13, 2),
    Sketcher.Constraint("Tangent", 13, 1, 14, 1),
    Sketcher.Constraint("Coincident", 14, 2, 15, 1),
    Sketcher.Constraint("Coincident", 15, 2, 12, 1),
    Sketcher.Constraint("Vertical", 0),
    Sketcher.Constraint("Vertical", 2),
    Sketcher.Constraint("Horizontal", 3),
    Sketcher.Constraint("Vertical", 4),
    Sketcher.Constraint("Vertical", 6),
    Sketcher.Constraint("Horizontal", 7),
    Sketcher.Constraint("Vertical", 8),
    Sketcher.Constraint("Horizontal", 9),
    Sketcher.Constraint("Vertical", 10),
    Sketcher.Constraint("Vertical", 12),
    Sketcher.Constraint("Vertical", 14),
    Sketcher.Constraint("Horizontal", 15),
    Sketcher.Constraint("Equal", 1, 5),
    Sketcher.Constraint("Equal", 5, 11),
    Sketcher.Constraint("Equal", 11, 13),
    Sketcher.Constraint("Horizontal", 1, 3, 5, 3),
    Sketcher.Constraint("Horizontal", 11, 3, 13, 3),
    Sketcher.Constraint("Horizontal", 3, 2, 6, 2),
    Sketcher.Constraint("Horizontal", 9, 2, 14, 2),
    Sketcher.Constraint("Vertical", 1, 3, 11, 3),
    Sketcher.Constraint("Vertical", 5, 3, 13, 3),
    Sketcher.Constraint("Equal", 6, 8),
    Sketcher.Constraint("Radius", 1, Q("5 mm")),
    Sketcher.Constraint("DistanceY", 0, 1, 0, 2, Q("5 mm")),
    Sketcher.Constraint("DistanceX", -1, 1, 1, 3, Q("72 mm")),
    Sketcher.Constraint("DistanceY", 1, 3, -1, 1, Q("645 mm")),
    Sketcher.Constraint("DistanceX", -1, 1, 5, 3, Q("195 mm")),
    Sketcher.Constraint("DistanceY", 11, 3, -1, 1, Q("755 mm")),
])
pad3 = body.newObject("PartDesign::Pad", "Pad002")
pad3.Profile = sketch7
pad3.Length = 5.75
pad3.Midplane = True

sketch8 = body.newObject("Sketcher::SketchObject", "Sketch007")
sketch8.AttachmentSupport = (doc.getObject("XZ_Plane"), [""])
sketch8.MapMode = "FlatFace"
sketch8.AttachmentOffset = App.Placement(App.Vector(0, 0, -12.875), App.Rotation())
sketch8.addGeometry([
    Part.Circle(App.Vector(72, -644.3, 0), App.Vector(0, 0, 1), 3.4),
    Part.Circle(App.Vector(195, -644.3, 0), App.Vector(0, 0, 1), 3.4),
    Part.Circle(App.Vector(195, -755.7, 0), App.Vector(0, 0, 1), 3.4),
    Part.Circle(App.Vector(72, -755.7, 0), App.Vector(0, 0, 1), 3.4),
], False)
sketch8.addConstraint([
    Sketcher.Constraint("Equal", 0, 1),
    Sketcher.Constraint("Equal", 1, 2),
    Sketcher.Constraint("Equal", 2, 3),
    Sketcher.Constraint("Horizontal", 0, 3, 1, 3),
    Sketcher.Constraint("Horizontal", 2, 3, 3, 3),
    Sketcher.Constraint("Vertical", 1, 3, 2, 3),
    Sketcher.Constraint("Vertical", 0, 3, 3, 3),
    Sketcher.Constraint("Diameter", 0, Q("6.75 mm")),
    Sketcher.Constraint("DistanceX", -1, 1, 0, 3, Q("72 mm")),
    Sketcher.Constraint("DistanceX", -1, 1, 1, 3, Q("195 mm")),
    Sketcher.Constraint("DistanceY", 0, 3, -1, 1, Q("644.269 mm")),
    Sketcher.Constraint("DistanceY", 2, 3, -1, 1, Q("755.731 mm")),
])
pocket5 = body.newObject("PartDesign::Pocket", "Pocket004")
pocket5.Profile = sketch8
pocket5.Length = 5.75
pocket5.Reversed = True

doc.recompute()
